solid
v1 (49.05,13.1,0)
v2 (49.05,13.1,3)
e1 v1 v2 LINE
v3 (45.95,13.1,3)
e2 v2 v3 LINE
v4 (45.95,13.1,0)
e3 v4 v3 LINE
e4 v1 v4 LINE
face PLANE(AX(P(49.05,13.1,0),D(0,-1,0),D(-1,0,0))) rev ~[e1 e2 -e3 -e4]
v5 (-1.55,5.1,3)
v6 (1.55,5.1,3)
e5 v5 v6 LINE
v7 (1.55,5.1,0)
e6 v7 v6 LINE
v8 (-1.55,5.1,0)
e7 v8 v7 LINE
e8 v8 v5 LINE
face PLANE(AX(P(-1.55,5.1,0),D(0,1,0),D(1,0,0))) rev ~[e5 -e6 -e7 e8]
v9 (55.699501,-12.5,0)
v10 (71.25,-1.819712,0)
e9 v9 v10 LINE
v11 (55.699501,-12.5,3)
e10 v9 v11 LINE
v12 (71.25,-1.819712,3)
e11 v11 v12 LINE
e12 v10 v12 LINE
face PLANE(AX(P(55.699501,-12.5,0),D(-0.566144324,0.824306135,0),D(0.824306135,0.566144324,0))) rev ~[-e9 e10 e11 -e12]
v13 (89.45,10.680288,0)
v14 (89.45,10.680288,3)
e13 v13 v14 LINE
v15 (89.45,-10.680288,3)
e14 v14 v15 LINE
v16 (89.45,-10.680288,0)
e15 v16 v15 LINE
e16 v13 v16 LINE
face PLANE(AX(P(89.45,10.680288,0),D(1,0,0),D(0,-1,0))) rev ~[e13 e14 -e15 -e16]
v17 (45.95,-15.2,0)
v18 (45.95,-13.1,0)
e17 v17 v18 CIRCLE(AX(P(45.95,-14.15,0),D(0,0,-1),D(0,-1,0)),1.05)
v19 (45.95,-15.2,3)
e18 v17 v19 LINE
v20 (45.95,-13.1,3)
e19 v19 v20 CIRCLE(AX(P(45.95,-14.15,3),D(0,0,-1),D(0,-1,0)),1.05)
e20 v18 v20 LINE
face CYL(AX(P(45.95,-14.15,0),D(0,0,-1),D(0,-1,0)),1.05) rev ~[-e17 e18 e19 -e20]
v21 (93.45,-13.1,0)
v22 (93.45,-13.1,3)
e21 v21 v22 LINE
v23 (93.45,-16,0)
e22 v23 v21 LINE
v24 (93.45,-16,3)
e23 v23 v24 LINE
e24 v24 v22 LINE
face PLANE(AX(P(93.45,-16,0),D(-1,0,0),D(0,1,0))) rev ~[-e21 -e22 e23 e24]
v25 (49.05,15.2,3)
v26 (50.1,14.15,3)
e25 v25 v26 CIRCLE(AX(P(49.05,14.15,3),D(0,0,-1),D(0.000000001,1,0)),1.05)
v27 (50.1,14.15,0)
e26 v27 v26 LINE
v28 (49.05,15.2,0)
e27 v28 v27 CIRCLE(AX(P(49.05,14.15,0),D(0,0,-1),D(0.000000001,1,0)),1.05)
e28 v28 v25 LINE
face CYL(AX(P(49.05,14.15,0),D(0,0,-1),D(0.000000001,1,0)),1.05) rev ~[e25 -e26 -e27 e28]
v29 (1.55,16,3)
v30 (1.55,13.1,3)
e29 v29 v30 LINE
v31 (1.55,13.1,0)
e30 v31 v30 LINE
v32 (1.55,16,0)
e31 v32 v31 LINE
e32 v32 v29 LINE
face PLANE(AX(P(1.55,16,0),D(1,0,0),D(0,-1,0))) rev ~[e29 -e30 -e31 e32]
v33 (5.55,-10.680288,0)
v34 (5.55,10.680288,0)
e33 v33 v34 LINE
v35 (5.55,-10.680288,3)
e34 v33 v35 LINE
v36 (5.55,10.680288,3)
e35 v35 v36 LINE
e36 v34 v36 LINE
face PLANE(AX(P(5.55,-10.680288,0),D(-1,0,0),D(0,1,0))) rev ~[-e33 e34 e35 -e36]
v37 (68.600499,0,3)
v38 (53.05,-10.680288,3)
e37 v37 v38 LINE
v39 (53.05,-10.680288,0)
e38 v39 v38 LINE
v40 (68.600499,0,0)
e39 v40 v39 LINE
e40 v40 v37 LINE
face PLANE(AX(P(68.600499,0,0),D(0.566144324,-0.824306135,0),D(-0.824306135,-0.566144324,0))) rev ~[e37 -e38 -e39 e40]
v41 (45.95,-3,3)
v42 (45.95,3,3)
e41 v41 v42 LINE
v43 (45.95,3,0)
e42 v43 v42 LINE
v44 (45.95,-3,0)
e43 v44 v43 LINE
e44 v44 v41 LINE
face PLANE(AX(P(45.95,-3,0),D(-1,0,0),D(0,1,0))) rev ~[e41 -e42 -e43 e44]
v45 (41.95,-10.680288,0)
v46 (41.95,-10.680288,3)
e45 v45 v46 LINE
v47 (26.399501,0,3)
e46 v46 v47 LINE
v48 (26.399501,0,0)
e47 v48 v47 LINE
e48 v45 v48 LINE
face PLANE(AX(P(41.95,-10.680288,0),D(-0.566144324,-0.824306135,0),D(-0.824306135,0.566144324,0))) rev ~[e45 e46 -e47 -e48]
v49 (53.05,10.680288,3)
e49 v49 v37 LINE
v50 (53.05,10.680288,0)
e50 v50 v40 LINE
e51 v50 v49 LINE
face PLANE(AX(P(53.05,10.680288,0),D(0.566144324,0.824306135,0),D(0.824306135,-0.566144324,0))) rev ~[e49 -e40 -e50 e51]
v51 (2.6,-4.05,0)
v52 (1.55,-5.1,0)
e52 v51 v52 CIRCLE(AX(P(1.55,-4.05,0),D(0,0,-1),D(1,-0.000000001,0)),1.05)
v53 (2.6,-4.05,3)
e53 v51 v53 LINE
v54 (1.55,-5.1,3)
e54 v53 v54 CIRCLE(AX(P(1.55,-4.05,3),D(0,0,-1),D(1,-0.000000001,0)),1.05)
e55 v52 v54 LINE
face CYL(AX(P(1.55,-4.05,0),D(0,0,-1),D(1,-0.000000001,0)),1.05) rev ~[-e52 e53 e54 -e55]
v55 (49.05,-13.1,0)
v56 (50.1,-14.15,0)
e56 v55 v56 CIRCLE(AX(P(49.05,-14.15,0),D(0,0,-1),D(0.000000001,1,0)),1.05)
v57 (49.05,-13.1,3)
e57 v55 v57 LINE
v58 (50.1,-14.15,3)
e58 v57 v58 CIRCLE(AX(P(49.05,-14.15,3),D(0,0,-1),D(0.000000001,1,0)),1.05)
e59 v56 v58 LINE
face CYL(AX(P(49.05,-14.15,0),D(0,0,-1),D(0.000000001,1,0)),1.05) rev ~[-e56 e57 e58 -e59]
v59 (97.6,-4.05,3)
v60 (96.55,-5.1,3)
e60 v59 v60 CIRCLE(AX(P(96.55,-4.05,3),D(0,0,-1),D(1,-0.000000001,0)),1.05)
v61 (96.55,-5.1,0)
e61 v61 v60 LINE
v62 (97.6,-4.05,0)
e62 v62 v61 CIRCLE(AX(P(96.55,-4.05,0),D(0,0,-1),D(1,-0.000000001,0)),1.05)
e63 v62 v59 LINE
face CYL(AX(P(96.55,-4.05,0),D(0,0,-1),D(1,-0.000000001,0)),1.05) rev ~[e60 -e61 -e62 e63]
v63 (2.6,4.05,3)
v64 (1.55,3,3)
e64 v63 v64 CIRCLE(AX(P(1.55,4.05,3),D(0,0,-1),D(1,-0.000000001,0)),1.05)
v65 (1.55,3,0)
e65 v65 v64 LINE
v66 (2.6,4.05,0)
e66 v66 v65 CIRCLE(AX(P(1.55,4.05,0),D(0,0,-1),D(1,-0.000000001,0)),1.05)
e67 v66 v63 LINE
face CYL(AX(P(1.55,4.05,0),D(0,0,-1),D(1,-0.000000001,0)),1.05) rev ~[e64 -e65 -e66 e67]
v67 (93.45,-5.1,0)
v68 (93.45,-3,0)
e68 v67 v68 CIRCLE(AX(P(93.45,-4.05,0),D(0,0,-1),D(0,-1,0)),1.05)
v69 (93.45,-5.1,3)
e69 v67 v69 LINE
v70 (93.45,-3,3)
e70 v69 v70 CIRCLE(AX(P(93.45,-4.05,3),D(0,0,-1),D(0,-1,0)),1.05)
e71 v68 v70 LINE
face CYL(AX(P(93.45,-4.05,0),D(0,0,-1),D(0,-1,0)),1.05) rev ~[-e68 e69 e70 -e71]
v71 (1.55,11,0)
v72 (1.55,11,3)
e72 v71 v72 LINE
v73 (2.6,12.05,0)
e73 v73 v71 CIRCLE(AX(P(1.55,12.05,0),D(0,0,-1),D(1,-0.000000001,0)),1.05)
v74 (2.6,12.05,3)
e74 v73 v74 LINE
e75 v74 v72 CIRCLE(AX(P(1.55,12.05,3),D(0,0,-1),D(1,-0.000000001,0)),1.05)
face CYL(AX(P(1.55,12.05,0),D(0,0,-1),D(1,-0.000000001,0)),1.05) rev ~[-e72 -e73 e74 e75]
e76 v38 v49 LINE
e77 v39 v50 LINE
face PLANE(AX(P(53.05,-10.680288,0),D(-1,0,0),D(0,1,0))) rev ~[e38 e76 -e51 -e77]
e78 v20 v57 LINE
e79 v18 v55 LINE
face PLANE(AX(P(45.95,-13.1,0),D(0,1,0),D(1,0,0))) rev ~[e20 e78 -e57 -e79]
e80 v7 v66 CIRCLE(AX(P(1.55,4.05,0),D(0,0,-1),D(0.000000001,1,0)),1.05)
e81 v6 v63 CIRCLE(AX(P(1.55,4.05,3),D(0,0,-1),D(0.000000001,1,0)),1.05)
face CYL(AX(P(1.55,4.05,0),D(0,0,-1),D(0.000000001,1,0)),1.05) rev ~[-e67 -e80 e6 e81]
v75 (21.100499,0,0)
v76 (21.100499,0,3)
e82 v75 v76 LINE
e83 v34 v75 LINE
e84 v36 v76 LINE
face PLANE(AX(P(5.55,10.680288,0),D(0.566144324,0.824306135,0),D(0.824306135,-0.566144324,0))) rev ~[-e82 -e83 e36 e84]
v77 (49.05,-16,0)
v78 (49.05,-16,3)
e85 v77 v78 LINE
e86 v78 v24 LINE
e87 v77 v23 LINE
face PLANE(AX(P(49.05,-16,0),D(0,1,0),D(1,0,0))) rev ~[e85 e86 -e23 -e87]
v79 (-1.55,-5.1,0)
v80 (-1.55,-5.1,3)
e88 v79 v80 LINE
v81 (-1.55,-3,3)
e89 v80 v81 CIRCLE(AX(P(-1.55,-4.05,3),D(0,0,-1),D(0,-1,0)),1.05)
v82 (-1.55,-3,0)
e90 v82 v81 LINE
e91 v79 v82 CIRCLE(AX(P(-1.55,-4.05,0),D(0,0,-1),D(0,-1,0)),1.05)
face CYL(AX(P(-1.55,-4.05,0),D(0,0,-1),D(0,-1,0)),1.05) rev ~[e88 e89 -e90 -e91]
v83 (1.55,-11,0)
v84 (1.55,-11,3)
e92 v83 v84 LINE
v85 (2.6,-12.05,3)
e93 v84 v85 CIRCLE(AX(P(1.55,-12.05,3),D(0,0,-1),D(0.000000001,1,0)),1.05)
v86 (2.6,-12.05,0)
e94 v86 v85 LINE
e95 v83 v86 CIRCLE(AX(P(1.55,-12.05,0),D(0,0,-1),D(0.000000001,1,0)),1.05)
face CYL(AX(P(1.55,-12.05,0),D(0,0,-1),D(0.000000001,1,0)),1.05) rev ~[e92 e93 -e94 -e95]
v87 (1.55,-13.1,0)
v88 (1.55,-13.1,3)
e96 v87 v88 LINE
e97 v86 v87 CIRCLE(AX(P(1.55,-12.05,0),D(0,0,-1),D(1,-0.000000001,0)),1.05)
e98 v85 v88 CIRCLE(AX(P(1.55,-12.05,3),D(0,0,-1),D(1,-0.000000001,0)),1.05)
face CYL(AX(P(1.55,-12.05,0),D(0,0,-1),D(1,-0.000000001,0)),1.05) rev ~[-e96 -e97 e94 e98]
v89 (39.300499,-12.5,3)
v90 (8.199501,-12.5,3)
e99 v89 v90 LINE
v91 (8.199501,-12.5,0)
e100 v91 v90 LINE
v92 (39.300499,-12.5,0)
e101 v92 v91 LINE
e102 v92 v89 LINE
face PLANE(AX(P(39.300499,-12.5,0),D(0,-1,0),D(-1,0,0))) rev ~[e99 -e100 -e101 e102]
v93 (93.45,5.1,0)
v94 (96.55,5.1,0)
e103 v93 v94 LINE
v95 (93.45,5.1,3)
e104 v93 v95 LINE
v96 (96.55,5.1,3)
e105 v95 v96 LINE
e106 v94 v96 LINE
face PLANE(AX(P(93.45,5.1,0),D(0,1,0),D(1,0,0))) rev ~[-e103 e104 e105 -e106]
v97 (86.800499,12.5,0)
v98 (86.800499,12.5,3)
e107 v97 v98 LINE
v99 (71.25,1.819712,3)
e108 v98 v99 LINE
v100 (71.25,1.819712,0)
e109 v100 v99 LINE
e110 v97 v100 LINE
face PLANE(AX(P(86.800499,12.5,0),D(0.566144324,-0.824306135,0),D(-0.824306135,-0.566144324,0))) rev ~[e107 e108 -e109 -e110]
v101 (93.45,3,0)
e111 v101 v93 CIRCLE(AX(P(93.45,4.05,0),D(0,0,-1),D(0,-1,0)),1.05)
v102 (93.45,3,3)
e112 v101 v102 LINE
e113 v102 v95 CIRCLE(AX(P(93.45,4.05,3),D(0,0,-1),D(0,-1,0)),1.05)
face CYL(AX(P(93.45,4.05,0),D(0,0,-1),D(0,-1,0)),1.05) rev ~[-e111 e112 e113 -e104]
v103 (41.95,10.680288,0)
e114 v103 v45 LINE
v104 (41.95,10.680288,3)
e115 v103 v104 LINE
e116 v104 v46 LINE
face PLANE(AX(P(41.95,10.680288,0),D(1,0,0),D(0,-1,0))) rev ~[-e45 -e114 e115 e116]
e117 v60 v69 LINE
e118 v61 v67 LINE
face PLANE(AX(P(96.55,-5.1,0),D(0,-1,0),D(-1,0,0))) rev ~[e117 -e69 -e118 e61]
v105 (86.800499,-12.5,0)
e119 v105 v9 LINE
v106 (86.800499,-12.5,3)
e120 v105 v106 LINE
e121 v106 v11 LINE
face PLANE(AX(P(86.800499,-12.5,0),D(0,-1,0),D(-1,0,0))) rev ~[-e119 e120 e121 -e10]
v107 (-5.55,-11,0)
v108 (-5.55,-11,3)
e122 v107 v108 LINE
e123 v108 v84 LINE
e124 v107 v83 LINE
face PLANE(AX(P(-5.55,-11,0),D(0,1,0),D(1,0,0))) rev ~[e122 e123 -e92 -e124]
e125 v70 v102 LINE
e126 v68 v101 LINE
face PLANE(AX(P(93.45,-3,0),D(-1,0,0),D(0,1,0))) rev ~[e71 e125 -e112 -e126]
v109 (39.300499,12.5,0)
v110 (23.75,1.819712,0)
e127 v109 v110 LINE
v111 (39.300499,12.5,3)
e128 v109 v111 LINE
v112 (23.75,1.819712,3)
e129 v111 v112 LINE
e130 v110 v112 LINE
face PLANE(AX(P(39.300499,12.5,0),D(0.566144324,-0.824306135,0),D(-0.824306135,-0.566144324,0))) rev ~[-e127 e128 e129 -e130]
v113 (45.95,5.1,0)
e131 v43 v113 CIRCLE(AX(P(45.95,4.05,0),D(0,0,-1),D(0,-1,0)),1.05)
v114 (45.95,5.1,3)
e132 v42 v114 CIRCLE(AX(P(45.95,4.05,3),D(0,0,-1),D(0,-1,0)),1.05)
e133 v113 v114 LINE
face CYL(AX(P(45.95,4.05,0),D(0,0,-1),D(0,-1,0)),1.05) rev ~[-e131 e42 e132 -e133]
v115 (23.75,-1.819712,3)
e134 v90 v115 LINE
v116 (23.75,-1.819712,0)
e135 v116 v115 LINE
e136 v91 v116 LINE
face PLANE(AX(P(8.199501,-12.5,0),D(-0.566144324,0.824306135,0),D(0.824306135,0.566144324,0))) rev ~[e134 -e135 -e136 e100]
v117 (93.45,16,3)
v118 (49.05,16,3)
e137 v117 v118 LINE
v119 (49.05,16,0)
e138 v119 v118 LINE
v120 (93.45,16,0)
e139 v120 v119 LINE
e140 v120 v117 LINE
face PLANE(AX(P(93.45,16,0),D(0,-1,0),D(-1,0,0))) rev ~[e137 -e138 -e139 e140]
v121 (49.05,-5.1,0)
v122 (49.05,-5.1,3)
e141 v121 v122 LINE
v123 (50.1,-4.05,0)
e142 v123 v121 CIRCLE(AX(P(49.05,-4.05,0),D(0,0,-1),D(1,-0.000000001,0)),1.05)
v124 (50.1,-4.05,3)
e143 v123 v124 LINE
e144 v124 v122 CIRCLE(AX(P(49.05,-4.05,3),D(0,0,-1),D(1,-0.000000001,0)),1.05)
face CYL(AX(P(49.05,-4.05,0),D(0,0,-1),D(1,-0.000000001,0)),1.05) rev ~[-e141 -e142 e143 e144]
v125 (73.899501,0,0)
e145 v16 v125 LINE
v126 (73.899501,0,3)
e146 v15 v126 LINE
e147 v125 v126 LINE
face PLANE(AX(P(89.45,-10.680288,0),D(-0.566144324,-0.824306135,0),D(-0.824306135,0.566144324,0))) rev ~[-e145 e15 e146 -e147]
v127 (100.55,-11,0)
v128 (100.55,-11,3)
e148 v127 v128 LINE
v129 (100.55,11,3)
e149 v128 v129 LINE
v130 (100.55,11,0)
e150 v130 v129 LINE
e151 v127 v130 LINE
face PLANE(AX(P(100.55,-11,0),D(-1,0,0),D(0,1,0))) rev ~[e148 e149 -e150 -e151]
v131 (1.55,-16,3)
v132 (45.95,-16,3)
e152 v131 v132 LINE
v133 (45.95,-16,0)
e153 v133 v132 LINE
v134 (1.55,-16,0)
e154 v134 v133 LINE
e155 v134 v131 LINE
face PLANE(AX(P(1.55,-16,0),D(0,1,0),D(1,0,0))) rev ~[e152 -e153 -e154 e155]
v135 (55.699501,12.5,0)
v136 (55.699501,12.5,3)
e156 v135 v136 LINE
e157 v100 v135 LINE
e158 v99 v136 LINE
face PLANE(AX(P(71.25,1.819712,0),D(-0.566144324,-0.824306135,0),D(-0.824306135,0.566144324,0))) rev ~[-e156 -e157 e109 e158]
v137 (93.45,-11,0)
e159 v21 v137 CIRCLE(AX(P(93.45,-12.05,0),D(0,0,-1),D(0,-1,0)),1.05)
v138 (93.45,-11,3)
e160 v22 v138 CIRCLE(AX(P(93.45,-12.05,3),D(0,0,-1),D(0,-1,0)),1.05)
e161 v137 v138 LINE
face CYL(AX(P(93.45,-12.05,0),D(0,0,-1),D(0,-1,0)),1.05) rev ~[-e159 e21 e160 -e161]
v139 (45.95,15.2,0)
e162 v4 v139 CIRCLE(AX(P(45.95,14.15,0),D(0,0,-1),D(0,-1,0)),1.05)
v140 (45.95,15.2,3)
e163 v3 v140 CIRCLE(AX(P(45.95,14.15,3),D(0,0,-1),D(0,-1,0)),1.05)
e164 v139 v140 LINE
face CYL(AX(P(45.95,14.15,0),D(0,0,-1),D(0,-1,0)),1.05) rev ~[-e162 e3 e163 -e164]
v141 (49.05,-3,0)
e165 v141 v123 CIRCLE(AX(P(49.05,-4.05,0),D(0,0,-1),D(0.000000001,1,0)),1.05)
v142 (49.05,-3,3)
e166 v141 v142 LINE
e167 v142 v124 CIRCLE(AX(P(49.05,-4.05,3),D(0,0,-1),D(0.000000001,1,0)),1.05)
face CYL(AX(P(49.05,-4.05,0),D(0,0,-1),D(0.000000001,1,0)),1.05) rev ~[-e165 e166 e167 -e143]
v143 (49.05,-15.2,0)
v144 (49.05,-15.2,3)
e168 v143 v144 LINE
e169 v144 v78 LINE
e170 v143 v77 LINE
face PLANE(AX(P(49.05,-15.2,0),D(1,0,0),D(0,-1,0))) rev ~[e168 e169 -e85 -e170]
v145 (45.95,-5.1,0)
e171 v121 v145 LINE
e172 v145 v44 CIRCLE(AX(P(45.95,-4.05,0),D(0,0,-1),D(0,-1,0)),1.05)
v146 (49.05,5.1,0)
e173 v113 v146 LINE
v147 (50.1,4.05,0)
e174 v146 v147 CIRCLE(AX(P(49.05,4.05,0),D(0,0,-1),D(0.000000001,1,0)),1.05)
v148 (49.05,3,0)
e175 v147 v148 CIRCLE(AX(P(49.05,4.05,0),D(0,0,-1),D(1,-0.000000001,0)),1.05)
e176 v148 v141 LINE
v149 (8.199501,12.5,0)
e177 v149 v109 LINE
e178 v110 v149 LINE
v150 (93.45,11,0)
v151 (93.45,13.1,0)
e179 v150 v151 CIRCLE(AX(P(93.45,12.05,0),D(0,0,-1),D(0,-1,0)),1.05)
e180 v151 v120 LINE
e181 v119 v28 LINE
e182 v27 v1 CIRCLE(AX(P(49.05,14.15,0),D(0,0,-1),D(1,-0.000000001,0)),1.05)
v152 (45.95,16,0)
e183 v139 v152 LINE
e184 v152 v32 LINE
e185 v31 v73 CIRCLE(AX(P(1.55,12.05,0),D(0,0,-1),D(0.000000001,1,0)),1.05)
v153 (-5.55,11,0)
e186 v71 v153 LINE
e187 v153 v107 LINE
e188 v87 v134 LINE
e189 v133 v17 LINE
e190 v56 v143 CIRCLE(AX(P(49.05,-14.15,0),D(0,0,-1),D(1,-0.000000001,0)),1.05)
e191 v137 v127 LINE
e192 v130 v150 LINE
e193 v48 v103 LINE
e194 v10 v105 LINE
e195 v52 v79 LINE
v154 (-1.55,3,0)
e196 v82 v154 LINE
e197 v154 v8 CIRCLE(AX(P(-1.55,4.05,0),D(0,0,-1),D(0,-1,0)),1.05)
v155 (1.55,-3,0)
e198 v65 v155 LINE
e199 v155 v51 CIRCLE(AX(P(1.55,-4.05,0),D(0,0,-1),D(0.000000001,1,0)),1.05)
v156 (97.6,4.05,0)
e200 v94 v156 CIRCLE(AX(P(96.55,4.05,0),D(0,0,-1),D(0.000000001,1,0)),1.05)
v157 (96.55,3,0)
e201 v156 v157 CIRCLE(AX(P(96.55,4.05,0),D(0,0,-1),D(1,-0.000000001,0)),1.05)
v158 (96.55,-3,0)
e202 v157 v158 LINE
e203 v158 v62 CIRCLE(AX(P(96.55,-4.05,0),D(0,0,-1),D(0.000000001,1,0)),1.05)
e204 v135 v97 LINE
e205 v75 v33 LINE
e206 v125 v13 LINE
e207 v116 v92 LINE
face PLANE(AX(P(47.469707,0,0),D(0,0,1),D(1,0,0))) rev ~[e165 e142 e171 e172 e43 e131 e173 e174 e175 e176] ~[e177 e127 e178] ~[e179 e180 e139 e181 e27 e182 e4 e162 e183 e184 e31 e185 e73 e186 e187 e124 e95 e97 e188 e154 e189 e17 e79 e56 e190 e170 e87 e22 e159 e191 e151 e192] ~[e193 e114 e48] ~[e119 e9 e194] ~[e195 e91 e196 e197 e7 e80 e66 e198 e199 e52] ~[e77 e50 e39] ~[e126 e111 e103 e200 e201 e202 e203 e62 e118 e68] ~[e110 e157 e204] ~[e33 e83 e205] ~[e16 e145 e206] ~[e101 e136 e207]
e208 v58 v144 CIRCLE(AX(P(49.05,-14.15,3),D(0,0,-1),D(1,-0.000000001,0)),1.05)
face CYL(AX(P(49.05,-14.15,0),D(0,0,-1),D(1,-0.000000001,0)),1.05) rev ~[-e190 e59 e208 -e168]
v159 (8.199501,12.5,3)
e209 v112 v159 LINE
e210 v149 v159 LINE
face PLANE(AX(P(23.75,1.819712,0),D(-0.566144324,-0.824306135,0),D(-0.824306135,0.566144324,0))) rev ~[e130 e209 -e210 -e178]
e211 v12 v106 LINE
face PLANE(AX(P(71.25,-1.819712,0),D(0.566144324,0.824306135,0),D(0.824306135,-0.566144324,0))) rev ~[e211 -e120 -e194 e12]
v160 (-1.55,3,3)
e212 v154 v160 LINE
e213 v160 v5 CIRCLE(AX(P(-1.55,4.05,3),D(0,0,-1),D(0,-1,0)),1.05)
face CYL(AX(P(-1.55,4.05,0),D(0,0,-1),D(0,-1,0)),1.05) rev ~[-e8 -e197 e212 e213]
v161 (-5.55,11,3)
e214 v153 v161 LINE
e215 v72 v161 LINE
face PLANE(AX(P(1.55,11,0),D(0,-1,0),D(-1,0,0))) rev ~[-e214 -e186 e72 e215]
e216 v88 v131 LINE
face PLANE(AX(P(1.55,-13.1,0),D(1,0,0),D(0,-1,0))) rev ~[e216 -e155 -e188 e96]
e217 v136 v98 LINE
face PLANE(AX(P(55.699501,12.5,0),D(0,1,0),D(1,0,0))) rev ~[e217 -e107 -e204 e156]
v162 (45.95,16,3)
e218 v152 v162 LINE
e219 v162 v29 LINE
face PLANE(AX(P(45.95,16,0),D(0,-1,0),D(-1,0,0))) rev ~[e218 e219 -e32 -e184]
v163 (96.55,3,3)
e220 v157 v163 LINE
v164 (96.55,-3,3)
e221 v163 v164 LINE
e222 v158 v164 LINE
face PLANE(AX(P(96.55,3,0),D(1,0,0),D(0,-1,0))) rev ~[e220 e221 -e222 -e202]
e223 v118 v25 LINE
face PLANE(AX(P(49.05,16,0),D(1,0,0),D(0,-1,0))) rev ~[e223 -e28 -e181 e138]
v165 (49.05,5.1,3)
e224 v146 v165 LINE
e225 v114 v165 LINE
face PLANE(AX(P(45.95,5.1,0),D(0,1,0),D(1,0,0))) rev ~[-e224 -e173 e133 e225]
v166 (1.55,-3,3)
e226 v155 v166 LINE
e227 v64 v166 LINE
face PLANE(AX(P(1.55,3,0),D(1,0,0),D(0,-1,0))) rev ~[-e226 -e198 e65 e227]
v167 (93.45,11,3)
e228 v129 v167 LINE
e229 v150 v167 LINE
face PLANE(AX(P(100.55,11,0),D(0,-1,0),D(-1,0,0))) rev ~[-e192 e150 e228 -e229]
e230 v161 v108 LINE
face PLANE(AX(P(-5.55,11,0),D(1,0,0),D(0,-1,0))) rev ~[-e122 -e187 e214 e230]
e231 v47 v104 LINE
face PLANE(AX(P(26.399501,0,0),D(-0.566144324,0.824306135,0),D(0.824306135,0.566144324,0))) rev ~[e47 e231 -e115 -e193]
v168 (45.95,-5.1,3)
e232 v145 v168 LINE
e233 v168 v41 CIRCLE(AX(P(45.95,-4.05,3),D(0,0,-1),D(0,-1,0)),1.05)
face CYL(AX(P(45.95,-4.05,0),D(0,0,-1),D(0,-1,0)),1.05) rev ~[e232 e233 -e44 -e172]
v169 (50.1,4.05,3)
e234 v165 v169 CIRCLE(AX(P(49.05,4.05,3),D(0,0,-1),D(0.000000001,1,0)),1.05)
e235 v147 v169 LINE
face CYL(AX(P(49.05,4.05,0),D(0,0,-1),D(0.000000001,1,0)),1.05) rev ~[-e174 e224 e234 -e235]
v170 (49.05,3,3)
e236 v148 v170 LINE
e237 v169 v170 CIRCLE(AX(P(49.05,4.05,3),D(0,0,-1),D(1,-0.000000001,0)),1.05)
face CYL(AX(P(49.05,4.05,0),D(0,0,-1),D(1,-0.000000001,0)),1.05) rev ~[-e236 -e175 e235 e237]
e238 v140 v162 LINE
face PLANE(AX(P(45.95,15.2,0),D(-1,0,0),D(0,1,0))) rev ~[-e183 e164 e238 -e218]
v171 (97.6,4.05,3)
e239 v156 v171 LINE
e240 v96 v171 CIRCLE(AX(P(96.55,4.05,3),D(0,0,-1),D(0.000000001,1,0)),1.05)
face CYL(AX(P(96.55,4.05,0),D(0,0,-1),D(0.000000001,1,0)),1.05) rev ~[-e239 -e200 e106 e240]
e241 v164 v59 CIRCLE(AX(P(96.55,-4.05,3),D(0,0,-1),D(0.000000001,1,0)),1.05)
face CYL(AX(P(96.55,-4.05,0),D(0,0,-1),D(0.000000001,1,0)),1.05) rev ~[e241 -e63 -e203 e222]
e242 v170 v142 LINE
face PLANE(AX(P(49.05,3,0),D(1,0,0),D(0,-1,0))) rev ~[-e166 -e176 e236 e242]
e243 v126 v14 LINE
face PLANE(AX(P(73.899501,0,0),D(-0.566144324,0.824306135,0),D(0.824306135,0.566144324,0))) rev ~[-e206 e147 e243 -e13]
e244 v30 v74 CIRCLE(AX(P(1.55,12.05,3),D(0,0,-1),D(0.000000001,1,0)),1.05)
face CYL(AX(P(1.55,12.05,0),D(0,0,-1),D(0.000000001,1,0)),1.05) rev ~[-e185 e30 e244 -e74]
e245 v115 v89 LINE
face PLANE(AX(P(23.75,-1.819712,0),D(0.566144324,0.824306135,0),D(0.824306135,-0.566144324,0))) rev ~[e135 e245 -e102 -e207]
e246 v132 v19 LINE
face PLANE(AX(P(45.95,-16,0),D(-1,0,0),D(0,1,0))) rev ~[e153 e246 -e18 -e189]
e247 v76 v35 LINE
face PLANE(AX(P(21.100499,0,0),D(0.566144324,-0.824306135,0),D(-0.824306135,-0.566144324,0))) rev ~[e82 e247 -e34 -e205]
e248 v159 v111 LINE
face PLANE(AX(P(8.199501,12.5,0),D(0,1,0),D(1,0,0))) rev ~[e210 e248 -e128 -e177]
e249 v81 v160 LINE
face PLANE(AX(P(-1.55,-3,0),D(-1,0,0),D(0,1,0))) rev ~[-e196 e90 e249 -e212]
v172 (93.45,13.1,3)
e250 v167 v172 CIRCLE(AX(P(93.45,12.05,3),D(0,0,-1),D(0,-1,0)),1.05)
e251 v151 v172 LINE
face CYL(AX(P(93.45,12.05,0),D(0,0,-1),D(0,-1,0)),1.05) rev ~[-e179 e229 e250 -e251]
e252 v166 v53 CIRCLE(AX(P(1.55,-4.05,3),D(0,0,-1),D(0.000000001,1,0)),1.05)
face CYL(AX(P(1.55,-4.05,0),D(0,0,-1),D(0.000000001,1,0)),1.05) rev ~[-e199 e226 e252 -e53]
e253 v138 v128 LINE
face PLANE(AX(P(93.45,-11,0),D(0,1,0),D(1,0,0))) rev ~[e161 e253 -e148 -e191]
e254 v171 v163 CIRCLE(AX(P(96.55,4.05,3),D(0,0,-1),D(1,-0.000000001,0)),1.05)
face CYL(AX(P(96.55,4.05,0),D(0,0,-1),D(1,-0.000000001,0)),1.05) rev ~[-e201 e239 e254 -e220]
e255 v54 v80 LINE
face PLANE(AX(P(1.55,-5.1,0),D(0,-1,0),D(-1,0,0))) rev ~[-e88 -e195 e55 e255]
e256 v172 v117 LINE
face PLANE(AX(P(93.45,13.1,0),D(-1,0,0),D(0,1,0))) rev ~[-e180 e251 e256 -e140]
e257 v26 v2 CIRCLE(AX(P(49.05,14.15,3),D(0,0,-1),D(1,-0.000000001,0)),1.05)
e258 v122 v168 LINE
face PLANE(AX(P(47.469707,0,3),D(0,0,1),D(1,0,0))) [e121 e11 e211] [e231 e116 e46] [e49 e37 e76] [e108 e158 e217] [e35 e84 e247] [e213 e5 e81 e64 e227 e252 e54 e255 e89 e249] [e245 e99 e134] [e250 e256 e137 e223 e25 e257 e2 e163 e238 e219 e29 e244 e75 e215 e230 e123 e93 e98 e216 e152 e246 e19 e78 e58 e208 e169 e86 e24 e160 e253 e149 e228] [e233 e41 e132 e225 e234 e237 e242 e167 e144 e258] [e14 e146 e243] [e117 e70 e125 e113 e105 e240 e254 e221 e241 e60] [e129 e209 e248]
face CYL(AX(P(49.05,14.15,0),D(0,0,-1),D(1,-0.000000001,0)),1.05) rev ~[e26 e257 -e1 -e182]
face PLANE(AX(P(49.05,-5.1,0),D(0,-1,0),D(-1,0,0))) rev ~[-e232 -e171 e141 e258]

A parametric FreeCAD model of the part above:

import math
import FreeCAD as App
import Part
import Sketcher

V = App.Vector

doc = App.newDocument("Part")
body = doc.addObject("PartDesign::Body", "Body")

sketch1 = body.newObject("Sketcher::SketchObject", "Sketch")
sketch1.AttachmentSupport = (doc.getObject("XY_Plane"), [""])
sketch1.MapMode = "FlatFace"
sketch1.addGeometry(Part.LineSegment(V(100.5, -11, 0), V(100.5, 11, 0)), False)
sketch1.addGeometry(Part.LineSegment(V(100.5, 11, 0), V(93.5, 11, 0)), False)
sketch1.addGeometry(Part.ArcOfCircle(Part.Circle(V(93.5, 12.1, 0), V(0, 0, 1), 1.1), math.radians(90), math.radians(270)), False)
sketch1.addGeometry(Part.LineSegment(V(93.5, 13.1, 0), V(93.5, 16, 0)), False)
sketch1.addGeometry(Part.LineSegment(V(93.5, 16, 0), V(49, 16, 0)), False)
sketch1.addGeometry(Part.LineSegment(V(49, 16, 0), V(49, 15.2, 0)), False)
sketch1.addGeometry(Part.ArcOfCircle(Part.Circle(V(49, 14.1, 0), V(0, 0, 1), 1.1), math.radians(0), math.radians(90)), False)
sketch1.addGeometry(Part.ArcOfCircle(Part.Circle(V(49, 14.2, 0), V(0, 0, 1), 1.1), math.radians(-90), math.radians(0)), False)
sketch1.addGeometry(Part.LineSegment(V(49, 13.1, 0), V(46, 13.1, 0)), False)
sketch1.addGeometry(Part.ArcOfCircle(Part.Circle(V(46, 14.2, 0), V(0, 0, 1), 1.1), math.radians(90), math.radians(270)), False)
sketch1.addGeometry(Part.LineSegment(V(46, 15.2, 0), V(46, 16, 0)), False)
sketch1.addGeometry(Part.LineSegment(V(46, 16, 0), V(1.6, 16, 0)), False)
sketch1.addGeometry(Part.LineSegment(V(1.6, 16, 0), V(1.6, 13.1, 0)), False)
sketch1.addGeometry(Part.ArcOfCircle(Part.Circle(V(1.5, 12, 0), V(0, 0, 1), 1.1), math.radians(0), math.radians(90)), False)
sketch1.addGeometry(Part.ArcOfCircle(Part.Circle(V(1.5, 12.1, 0), V(0, 0, 1), 1.1), math.radians(-90), math.radians(0)), False)
sketch1.addGeometry(Part.LineSegment(V(1.6, 11, 0), V(-5.5, 11, 0)), False)
sketch1.addGeometry(Part.LineSegment(V(-5.5, 11, 0), V(-5.5, -11, 0)), False)
sketch1.addGeometry(Part.LineSegment(V(-5.5, -11, 0), V(1.6, -11, 0)), False)
sketch1.addGeometry(Part.ArcOfCircle(Part.Circle(V(1.5, -12.1, 0), V(0, 0, 1), 1.1), math.radians(0), math.radians(90)), False)
sketch1.addGeometry(Part.ArcOfCircle(Part.Circle(V(1.5, -12, 0), V(0, 0, 1), 1.1), math.radians(-90), math.radians(0)), False)
sketch1.addGeometry(Part.LineSegment(V(1.6, -13.1, 0), V(1.6, -16, 0)), False)
sketch1.addGeometry(Part.LineSegment(V(1.6, -16, 0), V(46, -16, 0)), False)
sketch1.addGeometry(Part.LineSegment(V(46, -16, 0), V(46, -15.2, 0)), False)
sketch1.addGeometry(Part.ArcOfCircle(Part.Circle(V(46, -14.2, 0), V(0, 0, 1), 1.1), math.radians(90), math.radians(270)), False)
sketch1.addGeometry(Part.LineSegment(V(46, -13.1, 0), V(49, -13.1, 0)), False)
sketch1.addGeometry(Part.ArcOfCircle(Part.Circle(V(49, -14.2, 0), V(0, 0, 1), 1.1), math.radians(0), math.radians(90)), False)
sketch1.addGeometry(Part.ArcOfCircle(Part.Circle(V(49, -14.1, 0), V(0, 0, 1), 1.1), math.radians(-90), math.radians(0)), False)
sketch1.addGeometry(Part.LineSegment(V(49, -15.2, 0), V(49, -16, 0)), False)
sketch1.addGeometry(Part.LineSegment(V(49, -16, 0), V(93.5, -16, 0)), False)
sketch1.addGeometry(Part.LineSegment(V(93.5, -16, 0), V(93.5, -13.1, 0)), False)
sketch1.addGeometry(Part.ArcOfCircle(Part.Circle(V(93.5, -12.1, 0), V(0, 0, 1), 1.1), math.radians(90), math.radians(270)), False)
sketch1.addGeometry(Part.LineSegment(V(93.5, -11, 0), V(100.5, -11, 0)), False)
sketch1.addGeometry(Part.LineSegment(V(23.8, -1.8, 0), V(39.3, -12.5, 0)), False)
sketch1.addGeometry(Part.LineSegment(V(39.3, -12.5, 0), V(8.2, -12.5, 0)), False)
sketch1.addGeometry(Part.LineSegment(V(8.2, -12.5, 0), V(23.8, -1.8, 0)), False)
sketch1.addGeometry(Part.LineSegment(V(86.8, -12.5, 0), V(55.7, -12.5, 0)), False)
sketch1.addGeometry(Part.LineSegment(V(55.7, -12.5, 0), V(71.2, -1.8, 0)), False)
sketch1.addGeometry(Part.LineSegment(V(71.2, -1.8, 0), V(86.8, -12.5, 0)), False)
sketch1.addGeometry(Part.ArcOfCircle(Part.Circle(V(1.5, -4.1, 0), V(0, 0, 1), 1.1), math.radians(0), math.radians(90)), False)
sketch1.addGeometry(Part.ArcOfCircle(Part.Circle(V(1.5, -4, 0), V(0, 0, 1), 1.1), math.radians(-90), math.radians(0)), False)
sketch1.addGeometry(Part.LineSegment(V(1.6, -5.1, 0), V(-1.6, -5.1, 0)), False)
sketch1.addGeometry(Part.ArcOfCircle(Part.Circle(V(-1.6, -4, 0), V(0, 0, 1), 1.1), math.radians(90), math.radians(270)), False)
sketch1.addGeometry(Part.LineSegment(V(-1.6, -3, 0), V(-1.6, 3, 0)), False)
sketch1.addGeometry(Part.ArcOfCircle(Part.Circle(V(-1.6, 4, 0), V(0, 0, 1), 1.1), math.radians(90), math.radians(270)), False)
sketch1.addGeometry(Part.LineSegment(V(-1.6, 5.1, 0), V(1.6, 5.1, 0)), False)
sketch1.addGeometry(Part.ArcOfCircle(Part.Circle(V(1.5, 4, 0), V(0, 0, 1), 1.1), math.radians(0), math.radians(90)), False)
sketch1.addGeometry(Part.ArcOfCircle(Part.Circle(V(1.5, 4.1, 0), V(0, 0, 1), 1.1), math.radians(-90), math.radians(0)), False)
sketch1.addGeometry(Part.LineSegment(V(1.6, 3, 0), V(1.6, -3, 0)), False)
sketch1.addGeometry(Part.LineSegment(V(5.5, 10.7, 0), V(21.1, 0, 0)), False)
sketch1.addGeometry(Part.LineSegment(V(21.1, 0, 0), V(5.5, -10.7, 0)), False)
sketch1.addGeometry(Part.LineSegment(V(5.5, -10.7, 0), V(5.5, 10.7, 0)), False)
sketch1.addGeometry(Part.LineSegment(V(42, -10.7, 0), V(26.4, 0, 0)), False)
sketch1.addGeometry(Part.LineSegment(V(26.4, 0, 0), V(42, 10.7, 0)), False)
sketch1.addGeometry(Part.LineSegment(V(42, 10.7, 0), V(42, -10.7, 0)), False)
sketch1.addGeometry(Part.LineSegment(V(39.3, 12.5, 0), V(23.8, 1.8, 0)), False)
sketch1.addGeometry(Part.LineSegment(V(23.8, 1.8, 0), V(8.2, 12.5, 0)), False)
sketch1.addGeometry(Part.LineSegment(V(8.2, 12.5, 0), V(39.3, 12.5, 0)), False)
sketch1.addGeometry(Part.ArcOfCircle(Part.Circle(V(49, -4.1, 0), V(0, 0, 1), 1.1), math.radians(0), math.radians(90)), False)
sketch1.addGeometry(Part.ArcOfCircle(Part.Circle(V(49, -4, 0), V(0, 0, 1), 1.1), math.radians(-90), math.radians(0)), False)
sketch1.addGeometry(Part.LineSegment(V(49, -5.1, 0), V(46, -5.1, 0)), False)
sketch1.addGeometry(Part.ArcOfCircle(Part.Circle(V(46, -4, 0), V(0, 0, 1), 1.1), math.radians(90), math.radians(270)), False)
sketch1.addGeometry(Part.LineSegment(V(46, -3, 0), V(46, 3, 0)), False)
sketch1.addGeometry(Part.ArcOfCircle(Part.Circle(V(46, 4, 0), V(0, 0, 1), 1.1), math.radians(90), math.radians(270)), False)
sketch1.addGeometry(Part.LineSegment(V(46, 5.1, 0), V(49, 5.1, 0)), False)
sketch1.addGeometry(Part.ArcOfCircle(Part.Circle(V(49, 4, 0), V(0, 0, 1), 1.1), math.radians(0), math.radians(90)), False)
sketch1.addGeometry(Part.ArcOfCircle(Part.Circle(V(49, 4.1, 0), V(0, 0, 1), 1.1), math.radians(-90), math.radians(0)), False)
sketch1.addGeometry(Part.LineSegment(V(49, 3, 0), V(49, -3, 0)), False)
sketch1.addGeometry(Part.LineSegment(V(53, -10.7, 0), V(53, 10.7, 0)), False)
sketch1.addGeometry(Part.LineSegment(V(53, 10.7, 0), V(68.6, 0, 0)), False)
sketch1.addGeometry(Part.LineSegment(V(68.6, 0, 0), V(53, -10.7, 0)), False)
sketch1.addGeometry(Part.LineSegment(V(73.9, 0, 0), V(89.5, 10.7, 0)), False)
sketch1.addGeometry(Part.LineSegment(V(89.5, 10.7, 0), V(89.5, -10.7, 0)), False)
sketch1.addGeometry(Part.LineSegment(V(89.5, -10.7, 0), V(73.9, 0, 0)), False)
sketch1.addGeometry(Part.ArcOfCircle(Part.Circle(V(96.5, -4.1, 0), V(0, 0, 1), 1.1), math.radians(0), math.radians(90)), False)
sketch1.addGeometry(Part.ArcOfCircle(Part.Circle(V(96.5, -4, 0), V(0, 0, 1), 1.1), math.radians(-90), math.radians(0)), False)
sketch1.addGeometry(Part.LineSegment(V(96.5, -5.1, 0), V(93.5, -5.1, 0)), False)
sketch1.addGeometry(Part.ArcOfCircle(Part.Circle(V(93.5, -4, 0), V(0, 0, 1), 1.1), math.radians(90), math.radians(270)), False)
sketch1.addGeometry(Part.LineSegment(V(93.5, -3, 0), V(93.5, 3, 0)), False)
sketch1.addGeometry(Part.ArcOfCircle(Part.Circle(V(93.5, 4, 0), V(0, 0, 1), 1.1), math.radians(90), math.radians(270)), False)
sketch1.addGeometry(Part.LineSegment(V(93.5, 5.1, 0), V(96.5, 5.1, 0)), False)
sketch1.addGeometry(Part.ArcOfCircle(Part.Circle(V(96.5, 4, 0), V(0, 0, 1), 1.1), math.radians(0), math.radians(90)), False)
sketch1.addGeometry(Part.ArcOfCircle(Part.Circle(V(96.5, 4.1, 0), V(0, 0, 1), 1.1), math.radians(-90), math.radians(0)), False)
sketch1.addGeometry(Part.LineSegment(V(96.5, 3, 0), V(96.5, -3, 0)), False)
sketch1.addGeometry(Part.LineSegment(V(71.2, 1.8, 0), V(55.7, 12.5, 0)), False)
sketch1.addGeometry(Part.LineSegment(V(55.7, 12.5, 0), V(86.8, 12.5, 0)), False)
sketch1.addGeometry(Part.LineSegment(V(86.8, 12.5, 0), V(71.2, 1.8, 0)), False)
sketch1.addConstraint(Sketcher.Constraint("Coincident", 0, 2, 1, 1))
sketch1.addConstraint(Sketcher.Constraint("Tangent", 1, 2, 2, 2))
sketch1.addConstraint(Sketcher.Constraint("Coincident", 2, 1, 3, 1))
sketch1.addConstraint(Sketcher.Constraint("Coincident", 3, 2, 4, 1))
sketch1.addConstraint(Sketcher.Constraint("Coincident", 4, 2, 5, 1))
sketch1.addConstraint(Sketcher.Constraint("Coincident", 5, 2, 6, 2))
sketch1.addConstraint(Sketcher.Constraint("Tangent", 6, 1, 7, 2))
sketch1.addConstraint(Sketcher.Constraint("Tangent", 7, 1, 8, 1))
sketch1.addConstraint(Sketcher.Constraint("Tangent", 8, 2, 9, 2))
sketch1.addConstraint(Sketcher.Constraint("Coincident", 9, 1, 10, 1))
sketch1.addConstraint(Sketcher.Constraint("Coincident", 10, 2, 11, 1))
sketch1.addConstraint(Sketcher.Constraint("Coincident", 11, 2, 12, 1))
sketch1.addConstraint(Sketcher.Constraint("Coincident", 12, 2, 13, 2))
sketch1.addConstraint(Sketcher.Constraint("Tangent", 13, 1, 14, 2))
sketch1.addConstraint(Sketcher.Constraint("Tangent", 14, 1, 15, 1))
sketch1.addConstraint(Sketcher.Constraint("Coincident", 15, 2, 16, 1))
sketch1.addConstraint(Sketcher.Constraint("Coincident", 16, 2, 17, 1))
sketch1.addConstraint(Sketcher.Constraint("Tangent", 17, 2, 18, 2))
sketch1.addConstraint(Sketcher.Constraint("Tangent", 18, 1, 19, 2))
sketch1.addConstraint(Sketcher.Constraint("Coincident", 19, 1, 20, 1))
sketch1.addConstraint(Sketcher.Constraint("Coincident", 20, 2, 21, 1))
sketch1.addConstraint(Sketcher.Constraint("Coincident", 21, 2, 22, 1))
sketch1.addConstraint(Sketcher.Constraint("Coincident", 22, 2, 23, 2))
sketch1.addConstraint(Sketcher.Constraint("Tangent", 23, 1, 24, 1))
sketch1.addConstraint(Sketcher.Constraint("Tangent", 24, 2, 25, 2))
sketch1.addConstraint(Sketcher.Constraint("Tangent", 25, 1, 26, 2))
sketch1.addConstraint(Sketcher.Constraint("Coincident", 26, 1, 27, 1))
sketch1.addConstraint(Sketcher.Constraint("Coincident", 27, 2, 28, 1))
sketch1.addConstraint(Sketcher.Constraint("Coincident", 28, 2, 29, 1))
sketch1.addConstraint(Sketcher.Constraint("Coincident", 29, 2, 30, 2))
sketch1.addConstraint(Sketcher.Constraint("Tangent", 30, 1, 31, 1))
sketch1.addConstraint(Sketcher.Constraint("Coincident", 31, 2, 0, 1))
sketch1.addConstraint(Sketcher.Constraint("Coincident", 32, 2, 33, 1))
sketch1.addConstraint(Sketcher.Constraint("Coincident", 33, 2, 34, 1))
sketch1.addConstraint(Sketcher.Constraint("Coincident", 34, 2, 32, 1))
sketch1.addConstraint(Sketcher.Constraint("Coincident", 35, 2, 36, 1))
sketch1.addConstraint(Sketcher.Constraint("Coincident", 36, 2, 37, 1))
sketch1.addConstraint(Sketcher.Constraint("Coincident", 37, 2, 35, 1))
sketch1.addConstraint(Sketcher.Constraint("Tangent", 38, 1, 39, 2))
sketch1.addConstraint(Sketcher.Constraint("Tangent", 39, 1, 40, 1))
sketch1.addConstraint(Sketcher.Constraint("Tangent", 40, 2, 41, 2))
sketch1.addConstraint(Sketcher.Constraint("Coincident", 41, 1, 42, 1))
sketch1.addConstraint(Sketcher.Constraint("Coincident", 42, 2, 43, 2))
sketch1.addConstraint(Sketcher.Constraint("Tangent", 43, 1, 44, 1))
sketch1.addConstraint(Sketcher.Constraint("Tangent", 44, 2, 45, 2))
sketch1.addConstraint(Sketcher.Constraint("Tangent", 45, 1, 46, 2))
sketch1.addConstraint(Sketcher.Constraint("Coincident", 46, 1, 47, 1))
sketch1.addConstraint(Sketcher.Constraint("Coincident", 47, 2, 38, 2))
sketch1.addConstraint(Sketcher.Constraint("Coincident", 48, 2, 49, 1))
sketch1.addConstraint(Sketcher.Constraint("Coincident", 49, 2, 50, 1))
sketch1.addConstraint(Sketcher.Constraint("Coincident", 50, 2, 48, 1))
sketch1.addConstraint(Sketcher.Constraint("Coincident", 51, 2, 52, 1))
sketch1.addConstraint(Sketcher.Constraint("Coincident", 52, 2, 53, 1))
sketch1.addConstraint(Sketcher.Constraint("Coincident", 53, 2, 51, 1))
sketch1.addConstraint(Sketcher.Constraint("Coincident", 54, 2, 55, 1))
sketch1.addConstraint(Sketcher.Constraint("Coincident", 55, 2, 56, 1))
sketch1.addConstraint(Sketcher.Constraint("Coincident", 56, 2, 54, 1))
sketch1.addConstraint(Sketcher.Constraint("Tangent", 57, 1, 58, 2))
sketch1.addConstraint(Sketcher.Constraint("Tangent", 58, 1, 59, 1))
sketch1.addConstraint(Sketcher.Constraint("Tangent", 59, 2, 60, 2))
sketch1.addConstraint(Sketcher.Constraint("Coincident", 60, 1, 61, 1))
sketch1.addConstraint(Sketcher.Constraint("Coincident", 61, 2, 62, 2))
sketch1.addConstraint(Sketcher.Constraint("Tangent", 62, 1, 63, 1))
sketch1.addConstraint(Sketcher.Constraint("Tangent", 63, 2, 64, 2))
sketch1.addConstraint(Sketcher.Constraint("Tangent", 64, 1, 65, 2))
sketch1.addConstraint(Sketcher.Constraint("Coincident", 65, 1, 66, 1))
sketch1.addConstraint(Sketcher.Constraint("Coincident", 66, 2, 57, 2))
sketch1.addConstraint(Sketcher.Constraint("Coincident", 67, 2, 68, 1))
sketch1.addConstraint(Sketcher.Constraint("Coincident", 68, 2, 69, 1))
sketch1.addConstraint(Sketcher.Constraint("Coincident", 69, 2, 67, 1))
sketch1.addConstraint(Sketcher.Constraint("Coincident", 70, 2, 71, 1))
sketch1.addConstraint(Sketcher.Constraint("Coincident", 71, 2, 72, 1))
sketch1.addConstraint(Sketcher.Constraint("Coincident", 72, 2, 70, 1))
sketch1.addConstraint(Sketcher.Constraint("Tangent", 73, 1, 74, 2))
sketch1.addConstraint(Sketcher.Constraint("Tangent", 74, 1, 75, 1))
sketch1.addConstraint(Sketcher.Constraint("Tangent", 75, 2, 76, 2))
sketch1.addConstraint(Sketcher.Constraint("Coincident", 76, 1, 77, 1))
sketch1.addConstraint(Sketcher.Constraint("Coincident", 77, 2, 78, 2))
sketch1.addConstraint(Sketcher.Constraint("Tangent", 78, 1, 79, 1))
sketch1.addConstraint(Sketcher.Constraint("Tangent", 79, 2, 80, 2))
sketch1.addConstraint(Sketcher.Constraint("Tangent", 80, 1, 81, 2))
sketch1.addConstraint(Sketcher.Constraint("Coincident", 81, 1, 82, 1))
sketch1.addConstraint(Sketcher.Constraint("Coincident", 82, 2, 73, 2))
sketch1.addConstraint(Sketcher.Constraint("Coincident", 83, 2, 84, 1))
sketch1.addConstraint(Sketcher.Constraint("Coincident", 84, 2, 85, 1))
sketch1.addConstraint(Sketcher.Constraint("Coincident", 85, 2, 83, 1))
sketch1.addConstraint(Sketcher.Constraint("Vertical", 0))
sketch1.addConstraint(Sketcher.Constraint("Horizontal", 1))
sketch1.addConstraint(Sketcher.Constraint("Vertical", 3))
sketch1.addConstraint(Sketcher.Constraint("Horizontal", 4))
sketch1.addConstraint(Sketcher.Constraint("Vertical", 5))
sketch1.addConstraint(Sketcher.Constraint("Horizontal", 8))
sketch1.addConstraint(Sketcher.Constraint("Vertical", 10))
sketch1.addConstraint(Sketcher.Constraint("Horizontal", 11))
sketch1.addConstraint(Sketcher.Constraint("Vertical", 12))
sketch1.addConstraint(Sketcher.Constraint("Horizontal", 15))
sketch1.addConstraint(Sketcher.Constraint("Vertical", 16))
sketch1.addConstraint(Sketcher.Constraint("Horizontal", 17))
sketch1.addConstraint(Sketcher.Constraint("Vertical", 20))
sketch1.addConstraint(Sketcher.Constraint("Horizontal", 21))
sketch1.addConstraint(Sketcher.Constraint("Vertical", 22))
sketch1.addConstraint(Sketcher.Constraint("Horizontal", 24))
sketch1.addConstraint(Sketcher.Constraint("Vertical", 27))
sketch1.addConstraint(Sketcher.Constraint("Horizontal", 28))
sketch1.addConstraint(Sketcher.Constraint("Vertical", 29))
sketch1.addConstraint(Sketcher.Constraint("Horizontal", 31))
sketch1.addConstraint(Sketcher.Constraint("Horizontal", 33))
sketch1.addConstraint(Sketcher.Constraint("Horizontal", 35))
sketch1.addConstraint(Sketcher.Constraint("Horizontal", 40))
sketch1.addConstraint(Sketcher.Constraint("Vertical", 42))
sketch1.addConstraint(Sketcher.Constraint("Horizontal", 44))
sketch1.addConstraint(Sketcher.Constraint("Vertical", 47))
sketch1.addConstraint(Sketcher.Constraint("Vertical", 50))
sketch1.addConstraint(Sketcher.Constraint("Vertical", 53))
sketch1.addConstraint(Sketcher.Constraint("Horizontal", 56))
sketch1.addConstraint(Sketcher.Constraint("Horizontal", 59))
sketch1.addConstraint(Sketcher.Constraint("Vertical", 61))
sketch1.addConstraint(Sketcher.Constraint("Horizontal", 63))
sketch1.addConstraint(Sketcher.Constraint("Vertical", 66))
sketch1.addConstraint(Sketcher.Constraint("Vertical", 67))
sketch1.addConstraint(Sketcher.Constraint("Vertical", 71))
sketch1.addConstraint(Sketcher.Constraint("Horizontal", 75))
sketch1.addConstraint(Sketcher.Constraint("Vertical", 77))
sketch1.addConstraint(Sketcher.Constraint("Horizontal", 79))
sketch1.addConstraint(Sketcher.Constraint("Vertical", 82))
sketch1.addConstraint(Sketcher.Constraint("Horizontal", 84))
sketch1.addConstraint(Sketcher.Constraint("Equal", 2, 6))
sketch1.addConstraint(Sketcher.Constraint("Equal", 6, 7))
sketch1.addConstraint(Sketcher.Constraint("Equal", 7, 9))
sketch1.addConstraint(Sketcher.Constraint("Equal", 9, 13))
sketch1.addConstraint(Sketcher.Constraint("Equal", 13, 14))
sketch1.addConstraint(Sketcher.Constraint("Equal", 14, 18))
sketch1.addConstraint(Sketcher.Constraint("Equal", 18, 19))
sketch1.addConstraint(Sketcher.Constraint("Equal", 19, 23))
sketch1.addConstraint(Sketcher.Constraint("Equal", 23, 25))
sketch1.addConstraint(Sketcher.Constraint("Equal", 25, 26))
sketch1.addConstraint(Sketcher.Constraint("Equal", 26, 30))
sketch1.addConstraint(Sketcher.Constraint("Equal", 30, 38))
sketch1.addConstraint(Sketcher.Constraint("Equal", 38, 39))
sketch1.addConstraint(Sketcher.Constraint("Equal", 39, 41))
sketch1.addConstraint(Sketcher.Constraint("Equal", 41, 43))
sketch1.addConstraint(Sketcher.Constraint("Equal", 43, 45))
sketch1.addConstraint(Sketcher.Constraint("Equal", 45, 46))
sketch1.addConstraint(Sketcher.Constraint("Equal", 46, 57))
sketch1.addConstraint(Sketcher.Constraint("Equal", 57, 58))
sketch1.addConstraint(Sketcher.Constraint("Equal", 58, 60))
sketch1.addConstraint(Sketcher.Constraint("Equal", 60, 62))
sketch1.addConstraint(Sketcher.Constraint("Equal", 62, 64))
sketch1.addConstraint(Sketcher.Constraint("Equal", 64, 65))
sketch1.addConstraint(Sketcher.Constraint("Equal", 65, 73))
sketch1.addConstraint(Sketcher.Constraint("Equal", 73, 74))
sketch1.addConstraint(Sketcher.Constraint("Equal", 74, 76))
sketch1.addConstraint(Sketcher.Constraint("Equal", 76, 78))
sketch1.addConstraint(Sketcher.Constraint("Equal", 78, 80))
sketch1.addConstraint(Sketcher.Constraint("Equal", 80, 81))
sketch1.addConstraint(Sketcher.Constraint("Symmetric", 38, 3, 43, 3, -1, 1))
sketch1.addConstraint(Sketcher.Constraint("Symmetric", 13, 3, 18, 3, -1))
sketch1.addConstraint(Sketcher.Constraint("Symmetric", 9, 3, 23, 3, -1))
sketch1.addConstraint(Sketcher.Constraint("Symmetric", 2, 3, 30, 3, -1))
sketch1.addConstraint(Sketcher.Constraint("Symmetric", 60, 3, 62, 3, -1))
sketch1.addConstraint(Sketcher.Constraint("Symmetric", 76, 3, 78, 3, -1))
sketch1.addConstraint(Sketcher.Constraint("Symmetric", 11, 2, 20, 2, -1))
sketch1.addConstraint(Sketcher.Constraint("Symmetric", 6, 1, 25, 1, -1))
sketch1.addConstraint(Sketcher.Constraint("Symmetric", 4, 2, 27, 2, -1))
sketch1.addConstraint(Sketcher.Constraint("Symmetric", 38, 1, 45, 1, -1))
sketch1.addConstraint(Sketcher.Constraint("Symmetric", 34, 2, 54, 2, -1))
sketch1.addConstraint(Sketcher.Constraint("Symmetric", 33, 2, 55, 2, -1))
sketch1.addConstraint(Sketcher.Constraint("Symmetric", 57, 1, 64, 1, -1))
sketch1.addConstraint(Sketcher.Constraint("Symmetric", 73, 1, 80, 1, -1))
sketch1.addConstraint(Sketcher.Constraint("Symmetric", 35, 2, 83, 2, -1))
sketch1.addConstraint(Sketcher.Constraint("Symmetric", 36, 2, 85, 2, -1))
sketch1.addConstraint(Sketcher.Constraint("PointOnObject", 48, 2, -1))
sketch1.addConstraint(Sketcher.Constraint("PointOnObject", 51, 2, -1))
sketch1.addConstraint(Sketcher.Constraint("PointOnObject", 68, 2, -1))
sketch1.addConstraint(Sketcher.Constraint("PointOnObject", 72, 2, -1))
sketch1.addConstraint(Sketcher.Constraint("Parallel", 34, 36))
sketch1.addConstraint(Sketcher.Constraint("Parallel", 32, 37))
sketch1.addConstraint(Sketcher.Constraint("Parallel", 37, 48))
sketch1.addConstraint(Sketcher.Constraint("Parallel", 36, 49))
sketch1.addConstraint(Sketcher.Constraint("Parallel", 48, 51))
sketch1.addConstraint(Sketcher.Constraint("Parallel", 49, 52))
sketch1.addConstraint(Sketcher.Constraint("Parallel", 52, 54))
sketch1.addConstraint(Sketcher.Constraint("Parallel", 51, 55))
sketch1.addConstraint(Sketcher.Constraint("Parallel", 55, 68))
sketch1.addConstraint(Sketcher.Constraint("Parallel", 54, 69))
sketch1.addConstraint(Sketcher.Constraint("Parallel", 69, 70))
sketch1.addConstraint(Sketcher.Constraint("Parallel", 68, 72))
sketch1.addConstraint(Sketcher.Constraint("Parallel", 70, 85))
sketch1.addConstraint(Sketcher.Constraint("Horizontal", 2, 3, 13, 3))
sketch1.addConstraint(Sketcher.Constraint("Horizontal", 41, 3, 57, 3))
sketch1.addConstraint(Sketcher.Constraint("Horizontal", 60, 3, 73, 3))
sketch1.addConstraint(Sketcher.Constraint("Horizontal", 9, 3, 6, 1))
sketch1.addConstraint(Sketcher.Constraint("Horizontal", 2, 1, 7, 1))
sketch1.addConstraint(Sketcher.Constraint("Horizontal", 4, 2, 10, 2))
sketch1.addConstraint(Sketcher.Constraint("Horizontal", 14, 3, 13, 1))
sketch1.addConstraint(Sketcher.Constraint("Horizontal", 30, 3, 18, 1))
sketch1.addConstraint(Sketcher.Constraint("Horizontal", 33, 2, 35, 2))
sketch1.addConstraint(Sketcher.Constraint("Horizontal", 34, 2, 36, 2))
sketch1.addConstraint(Sketcher.Constraint("Horizontal", 76, 3, 38, 1))
sketch1.addConstraint(Sketcher.Constraint("Horizontal", 50, 2, 52, 2))
sketch1.addConstraint(Sketcher.Constraint("Horizontal", 38, 1, 57, 1))
sketch1.addConstraint(Sketcher.Constraint("Horizontal", 52, 2, 67, 2))
sketch1.addConstraint(Sketcher.Constraint("Horizontal", 67, 2, 70, 2))
sketch1.addConstraint(Sketcher.Constraint("Horizontal", 57, 1, 73, 1))
sketch1.addConstraint(Sketcher.Constraint("Vertical", 19, 3, 38, 3))
sketch1.addConstraint(Sketcher.Constraint("Vertical", 41, 3, 43, 3))
sketch1.addConstraint(Sketcher.Constraint("Vertical", 26, 3, 57, 3))
sketch1.addConstraint(Sketcher.Constraint("Vertical", 23, 3, 60, 3))
sketch1.addConstraint(Sketcher.Constraint("Vertical", 30, 3, 76, 3))
sketch1.addConstraint(Sketcher.Constraint("Vertical", 1, 2, 2, 1))
sketch1.addConstraint(Sketcher.Constraint("Vertical", 65, 3, 4, 2))
sketch1.addConstraint(Sketcher.Constraint("Vertical", 8, 2, 9, 1))
sketch1.addConstraint(Sketcher.Constraint("Vertical", 46, 3, 11, 2))
sketch1.addConstraint(Sketcher.Constraint("Vertical", 10, 2, 21, 2))
sketch1.addConstraint(Sketcher.Constraint("Vertical", 3, 2, 28, 2))
sketch1.addConstraint(Sketcher.Constraint("Vertical", 40, 2, 41, 1))
sketch1.addConstraint(Sketcher.Constraint("Vertical", 44, 2, 46, 1))
sketch1.addConstraint(Sketcher.Constraint("Vertical", 59, 2, 60, 1))
sketch1.addConstraint(Sketcher.Constraint("Vertical", 63, 2, 65, 1))
sketch1.addConstraint(Sketcher.Constraint("Vertical", 75, 2, 76, 1))
sketch1.addConstraint(Sketcher.Constraint("Vertical", 79, 2, 81, 1))
sketch1.addConstraint(Sketcher.Constraint("Equal", 4, 11))
sketch1.addConstraint(Sketcher.Constraint("Equal", 1, 15))
sketch1.addConstraint(Sketcher.Constraint("Equal", 24, 40))
sketch1.addConstraint(Sketcher.Constraint("Equal", 63, 75))
sketch1.addConstraint(Sketcher.Constraint("Equal", 37, 48))
sketch1.addConstraint(Sketcher.Constraint("DistanceY", 0, 1, 0, 2, 22.0))
sketch1.addConstraint(Sketcher.Constraint("DistanceY", 42, 1, 42, 2, 6.0))
sketch1.addConstraint(Sketcher.Constraint("Radius", 2, 1.05))
sketch1.addConstraint(Sketcher.Constraint("DistanceX", 1, 2, 1, 1, 7.1))
sketch1.addConstraint(Sketcher.Constraint("DistanceX", 4, 2, 4, 1, 44.4))
sketch1.addConstraint(Sketcher.Constraint("DistanceX", 8, 2, 8, 1, 3.1))
sketch1.addConstraint(Sketcher.Constraint("DistanceY", 3, 1, 3, 2, 2.9))
sketch1.addConstraint(Sketcher.Constraint("DistanceY", 32, 2, -1, 1, 12.5))
sketch1.addConstraint(Sketcher.Constraint("DistanceX", -1, 1, 34, 2, 23.75))
sketch1.addConstraint(Sketcher.Constraint("DistanceX", -1, 1, 36, 2, 71.25))
sketch1.addConstraint(Sketcher.Constraint("DistanceX", -1, 1, 49, 2, 5.55))
sketch1.addConstraint(Sketcher.Constraint("DistanceX", -1, 1, 52, 2, 41.95))
sketch1.addConstraint(Sketcher.Constraint("DistanceX", -1, 1, 67, 2, 53.05))
sketch1.addConstraint(Sketcher.Constraint("DistanceX", -1, 1, 70, 2, 89.45))
sketch1.addConstraint(Sketcher.Constraint("DistanceX", -1, 1, 32, 2, 39.300499))
sketch1.addConstraint(Sketcher.Constraint("DistanceY", 50, 1, 50, 2, 21.360575))
pad1 = body.newObject("PartDesign::Pad", "Pad")
pad1.Profile = sketch1
pad1.Length = 3

doc.recompute()
